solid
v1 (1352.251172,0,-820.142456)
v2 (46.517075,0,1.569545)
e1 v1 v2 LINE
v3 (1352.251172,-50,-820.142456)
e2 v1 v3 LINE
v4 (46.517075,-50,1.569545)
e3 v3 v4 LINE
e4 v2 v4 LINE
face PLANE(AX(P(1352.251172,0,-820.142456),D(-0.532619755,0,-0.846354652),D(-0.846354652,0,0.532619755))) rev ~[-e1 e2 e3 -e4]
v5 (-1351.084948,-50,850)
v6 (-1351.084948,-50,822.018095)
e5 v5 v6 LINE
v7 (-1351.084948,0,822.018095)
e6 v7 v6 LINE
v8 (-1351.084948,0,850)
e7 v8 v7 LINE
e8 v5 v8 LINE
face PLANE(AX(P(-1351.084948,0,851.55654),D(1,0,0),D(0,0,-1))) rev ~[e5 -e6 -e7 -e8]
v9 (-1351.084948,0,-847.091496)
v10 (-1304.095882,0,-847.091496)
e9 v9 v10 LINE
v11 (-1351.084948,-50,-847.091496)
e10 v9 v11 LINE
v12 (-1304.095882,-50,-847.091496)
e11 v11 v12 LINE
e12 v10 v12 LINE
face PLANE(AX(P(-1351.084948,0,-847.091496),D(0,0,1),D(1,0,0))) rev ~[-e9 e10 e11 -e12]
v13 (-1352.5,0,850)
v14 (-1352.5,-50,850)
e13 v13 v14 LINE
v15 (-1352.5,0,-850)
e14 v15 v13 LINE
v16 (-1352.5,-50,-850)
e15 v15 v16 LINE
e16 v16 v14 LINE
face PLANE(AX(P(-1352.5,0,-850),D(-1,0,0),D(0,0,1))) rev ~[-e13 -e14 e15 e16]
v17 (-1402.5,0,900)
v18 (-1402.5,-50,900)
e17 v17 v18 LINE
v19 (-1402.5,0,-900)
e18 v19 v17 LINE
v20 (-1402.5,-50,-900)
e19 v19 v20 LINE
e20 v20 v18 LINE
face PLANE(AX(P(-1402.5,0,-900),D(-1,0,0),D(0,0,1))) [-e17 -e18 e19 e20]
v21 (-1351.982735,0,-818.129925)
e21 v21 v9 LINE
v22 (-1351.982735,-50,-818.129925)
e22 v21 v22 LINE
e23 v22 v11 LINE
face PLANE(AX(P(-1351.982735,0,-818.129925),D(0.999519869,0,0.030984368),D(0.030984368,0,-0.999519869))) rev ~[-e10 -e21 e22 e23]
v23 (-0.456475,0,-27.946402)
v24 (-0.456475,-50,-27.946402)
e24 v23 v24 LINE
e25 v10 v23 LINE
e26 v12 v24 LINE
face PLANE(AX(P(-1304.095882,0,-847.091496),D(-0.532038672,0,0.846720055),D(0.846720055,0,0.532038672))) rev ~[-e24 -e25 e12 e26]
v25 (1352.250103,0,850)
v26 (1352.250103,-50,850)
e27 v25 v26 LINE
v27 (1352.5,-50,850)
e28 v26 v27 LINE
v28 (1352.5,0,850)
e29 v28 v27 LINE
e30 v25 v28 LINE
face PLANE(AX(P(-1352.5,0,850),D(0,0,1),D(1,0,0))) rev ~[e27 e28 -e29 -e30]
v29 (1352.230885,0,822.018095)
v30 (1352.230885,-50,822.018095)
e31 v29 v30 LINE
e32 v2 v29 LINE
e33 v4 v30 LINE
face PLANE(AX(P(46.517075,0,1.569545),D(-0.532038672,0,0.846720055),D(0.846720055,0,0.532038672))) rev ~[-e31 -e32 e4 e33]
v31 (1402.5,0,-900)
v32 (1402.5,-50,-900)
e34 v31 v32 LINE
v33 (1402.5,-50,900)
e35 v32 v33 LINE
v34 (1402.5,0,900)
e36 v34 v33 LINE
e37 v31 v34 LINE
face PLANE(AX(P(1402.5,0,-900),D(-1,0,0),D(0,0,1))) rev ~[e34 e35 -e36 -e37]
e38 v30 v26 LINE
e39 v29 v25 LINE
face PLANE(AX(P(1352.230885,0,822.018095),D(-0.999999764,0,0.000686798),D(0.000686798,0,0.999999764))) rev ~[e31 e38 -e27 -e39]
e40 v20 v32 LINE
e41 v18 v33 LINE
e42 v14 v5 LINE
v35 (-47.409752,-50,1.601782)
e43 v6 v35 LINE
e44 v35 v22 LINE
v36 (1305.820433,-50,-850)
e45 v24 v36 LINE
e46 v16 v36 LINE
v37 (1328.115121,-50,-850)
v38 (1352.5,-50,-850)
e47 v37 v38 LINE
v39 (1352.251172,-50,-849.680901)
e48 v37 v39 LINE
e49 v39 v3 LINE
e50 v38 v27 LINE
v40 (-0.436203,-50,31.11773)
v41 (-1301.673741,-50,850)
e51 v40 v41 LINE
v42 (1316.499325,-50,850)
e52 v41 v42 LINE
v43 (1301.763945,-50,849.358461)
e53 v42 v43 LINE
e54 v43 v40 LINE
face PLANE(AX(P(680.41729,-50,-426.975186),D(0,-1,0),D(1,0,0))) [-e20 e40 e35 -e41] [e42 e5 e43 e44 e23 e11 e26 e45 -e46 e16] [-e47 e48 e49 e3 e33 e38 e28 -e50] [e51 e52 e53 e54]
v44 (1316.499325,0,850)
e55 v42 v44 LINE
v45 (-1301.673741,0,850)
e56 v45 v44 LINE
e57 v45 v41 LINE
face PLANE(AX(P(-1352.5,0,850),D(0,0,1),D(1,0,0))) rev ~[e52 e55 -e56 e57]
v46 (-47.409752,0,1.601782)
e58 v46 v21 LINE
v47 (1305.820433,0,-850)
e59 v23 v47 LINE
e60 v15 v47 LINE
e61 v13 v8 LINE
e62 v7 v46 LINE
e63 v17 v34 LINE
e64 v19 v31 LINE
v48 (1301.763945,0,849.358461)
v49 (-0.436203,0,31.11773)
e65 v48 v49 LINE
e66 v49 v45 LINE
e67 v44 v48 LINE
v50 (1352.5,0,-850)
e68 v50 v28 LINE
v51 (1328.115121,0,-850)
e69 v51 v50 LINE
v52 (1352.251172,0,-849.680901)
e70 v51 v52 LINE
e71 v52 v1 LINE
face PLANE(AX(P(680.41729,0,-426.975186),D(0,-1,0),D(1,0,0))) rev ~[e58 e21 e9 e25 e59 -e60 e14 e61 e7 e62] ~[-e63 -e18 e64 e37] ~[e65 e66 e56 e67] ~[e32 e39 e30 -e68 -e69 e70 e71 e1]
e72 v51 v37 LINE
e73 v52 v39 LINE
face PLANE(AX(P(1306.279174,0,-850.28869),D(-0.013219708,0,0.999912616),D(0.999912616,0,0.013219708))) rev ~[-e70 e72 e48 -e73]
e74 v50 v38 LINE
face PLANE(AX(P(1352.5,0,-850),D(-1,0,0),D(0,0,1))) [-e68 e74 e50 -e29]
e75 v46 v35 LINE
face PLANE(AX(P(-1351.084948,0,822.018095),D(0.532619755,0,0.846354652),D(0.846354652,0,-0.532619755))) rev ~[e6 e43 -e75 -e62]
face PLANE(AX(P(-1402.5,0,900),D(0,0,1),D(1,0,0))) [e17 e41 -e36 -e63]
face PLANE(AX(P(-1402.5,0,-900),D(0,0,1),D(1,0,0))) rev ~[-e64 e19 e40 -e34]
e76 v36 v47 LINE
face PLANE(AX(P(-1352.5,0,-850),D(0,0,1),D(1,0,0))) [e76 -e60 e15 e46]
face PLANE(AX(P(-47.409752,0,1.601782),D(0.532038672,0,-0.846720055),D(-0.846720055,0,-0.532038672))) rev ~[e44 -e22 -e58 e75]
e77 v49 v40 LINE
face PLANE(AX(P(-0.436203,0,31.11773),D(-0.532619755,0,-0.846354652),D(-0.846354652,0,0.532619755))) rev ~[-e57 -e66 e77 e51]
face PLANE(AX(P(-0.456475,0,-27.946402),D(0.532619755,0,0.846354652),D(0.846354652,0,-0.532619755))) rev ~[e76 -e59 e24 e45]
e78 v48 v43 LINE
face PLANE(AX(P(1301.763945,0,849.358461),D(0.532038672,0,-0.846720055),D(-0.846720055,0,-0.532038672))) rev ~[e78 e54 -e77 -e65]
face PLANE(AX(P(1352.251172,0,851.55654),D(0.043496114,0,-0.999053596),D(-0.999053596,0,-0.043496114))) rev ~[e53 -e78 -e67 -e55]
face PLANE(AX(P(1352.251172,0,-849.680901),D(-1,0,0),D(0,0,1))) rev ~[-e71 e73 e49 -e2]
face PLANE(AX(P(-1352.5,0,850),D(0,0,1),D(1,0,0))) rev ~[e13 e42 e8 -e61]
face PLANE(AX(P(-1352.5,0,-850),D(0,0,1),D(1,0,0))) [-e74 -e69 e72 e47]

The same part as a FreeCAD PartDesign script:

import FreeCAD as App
import Part
import Sketcher

V = App.Vector


def add_polygon(sketch, points):
    """Adds a closed chain of lines whose ends are joined by coincident constraints."""
    first, n = sketch.GeometryCount, len(points)
    for a, b in zip(points, points[1:] + points[:1]):
        sketch.addGeometry(Part.LineSegment(App.Vector(*a, 0), App.Vector(*b, 0)), False)
    for i in range(n):
        sketch.addConstraint(Sketcher.Constraint("Coincident", first + i, 2, first + (i + 1) % n, 1))

doc = App.newDocument("Part")
body = doc.addObject("PartDesign::Body", "Body")

sketch1 = body.newObject("Sketcher::SketchObject", "Sketch")
sketch1.AttachmentSupport = (doc.getObject("XZ_Plane"), [""])
sketch1.MapMode = "FlatFace"
add_polygon(sketch1, [(-1402.5, 900), (-1402.5, -900), (1402.5, -900), (1402.5, 900)])
add_polygon(sketch1, [(1352.5, -850), (-1352.5, -850), (-1352.5, 850), (1352.5, 850)])
sketch1.addConstraint(Sketcher.Constraint("Vertical", 0))
sketch1.addConstraint(Sketcher.Constraint("Horizontal", 1))
sketch1.addConstraint(Sketcher.Constraint("Vertical", 2))
sketch1.addConstraint(Sketcher.Constraint("Horizontal", 3))
sketch1.addConstraint(Sketcher.Constraint("Horizontal", 4))
sketch1.addConstraint(Sketcher.Constraint("Vertical", 5))
sketch1.addConstraint(Sketcher.Constraint("Horizontal", 6))
sketch1.addConstraint(Sketcher.Constraint("Vertical", 7))
sketch1.addConstraint(Sketcher.Constraint("Symmetric", 0, 2, 2, 2, -1, 1))
sketch1.addConstraint(Sketcher.Constraint("Symmetric", 4, 2, 6, 2, -1, 1))
sketch1.addConstraint(Sketcher.Constraint("DistanceX", 1, 1, 1, 2, 2805.0))
sketch1.addConstraint(Sketcher.Constraint("DistanceX", 4, 2, 4, 1, 2705.0))
sketch1.addConstraint(Sketcher.Constraint("DistanceY", 0, 2, 0, 1, 1800.0))
sketch1.addConstraint(Sketcher.Constraint("DistanceY", 5, 1, 5, 2, 1700.0))
pad1 = body.newObject("PartDesign::Pad", "Pad")
pad1.Profile = sketch1
pad1.Length = 50

sketch2 = body.newObject("Sketcher::SketchObject", "Sketch001")
sketch2.AttachmentSupport = (doc.getObject("XZ_Plane"), [""])
sketch2.MapMode = "FlatFace"
add_polygon(sketch2, [(-0.456475, -27.946402), (1306.279174, -850.28869), (1352.251172, -849.680901), (1352.251172, -820.142456), (46.517075, 1.569545), (1352.230885, 822.018095), (1352.251172, 851.55654), (1301.763945, 849.358461), (-0.436203, 31.11773), (-1302.444138, 850.484818), (-1351.084948, 851.55654), (-1351.084948, 822.018095), (-47.409752, 1.601782), (-1351.982735, -818.129925), (-1351.084948, -847.091496), (-1304.095882, -847.091496)])
sketch2.addConstraint(Sketcher.Constraint("Vertical", 2))
sketch2.addConstraint(Sketcher.Constraint("Vertical", 10))
sketch2.addConstraint(Sketcher.Constraint("Horizontal", 14))
sketch2.addConstraint(Sketcher.Constraint("Parallel", 0, 3))
sketch2.addConstraint(Sketcher.Constraint("Parallel", 4, 7))
sketch2.addConstraint(Sketcher.Constraint("Parallel", 3, 8))
sketch2.addConstraint(Sketcher.Constraint("Parallel", 8, 11))
sketch2.addConstraint(Sketcher.Constraint("Parallel", 7, 12))
sketch2.addConstraint(Sketcher.Constraint("Parallel", 12, 15))
sketch2.addConstraint(Sketcher.Constraint("Horizontal", 5, 2, 9, 2))
sketch2.addConstraint(Sketcher.Constraint("Horizontal", 4, 2, 10, 2))
sketch2.addConstraint(Sketcher.Constraint("Vertical", 2, 2, 5, 2))
sketch2.addConstraint(Sketcher.Constraint("Vertical", 10, 2, 13, 2))
sketch2.addConstraint(Sketcher.Constraint("Equal", 2, 10))
sketch2.addConstraint(Sketcher.Constraint("DistanceX", 0, 2, 1, 2, 45.971998))
sketch2.addConstraint(Sketcher.Constraint("DistanceY", 2, 2, 3, 2, 821.712001))
sketch2.addConstraint(Sketcher.Constraint("Distance", 11, 1540.341501))
sketch2.addConstraint(Sketcher.Constraint("Distance", 15, 1539.634499))
sketch2.addConstraint(Sketcher.Constraint("DistanceY", 1, 2, -1, 1, 849.680901))
sketch2.addConstraint(Sketcher.Constraint("DistanceX", 3, 2, 0, 2, 1259.762099))
sketch2.addConstraint(Sketcher.Constraint("Distance", 5, 29.538452))
sketch2.addConstraint(Sketcher.Constraint("Distance", 8, 1538.37157))
sketch2.addConstraint(Sketcher.Constraint("DistanceX", 14, 1, 14, 2, 46.989066))
sketch2.addConstraint(Sketcher.Constraint("DistanceY", 0, 2, -1, 1, 850.28869))
sketch2.addConstraint(Sketcher.Constraint("DistanceY", -1, 1, 5, 2, 851.55654))
sketch2.addConstraint(Sketcher.Constraint("DistanceY", -1, 1, 6, 2, 849.358461))
sketch2.addConstraint(Sketcher.Constraint("DistanceY", -1, 1, 7, 2, 31.11773))
sketch2.addConstraint(Sketcher.Constraint("DistanceX", 3, 2, 4, 2, 1305.71381))
sketch2.addConstraint(Sketcher.Constraint("DistanceX", 6, 2, 4, 2, 50.46694))
sketch2.addConstraint(Sketcher.Constraint("DistanceX", 9, 2, 8, 2, 48.64081))
sketch2.addConstraint(Sketcher.Constraint("DistanceX", 12, 2, 7, 2, 1351.546532))
sketch2.addConstraint(Sketcher.Constraint("DistanceX", -1, 1, 0, 2, 1306.279174))
pad2 = body.newObject("PartDesign::Pad", "Pad001")
pad2.Profile = sketch2
pad2.Length = 50

doc.recompute()
